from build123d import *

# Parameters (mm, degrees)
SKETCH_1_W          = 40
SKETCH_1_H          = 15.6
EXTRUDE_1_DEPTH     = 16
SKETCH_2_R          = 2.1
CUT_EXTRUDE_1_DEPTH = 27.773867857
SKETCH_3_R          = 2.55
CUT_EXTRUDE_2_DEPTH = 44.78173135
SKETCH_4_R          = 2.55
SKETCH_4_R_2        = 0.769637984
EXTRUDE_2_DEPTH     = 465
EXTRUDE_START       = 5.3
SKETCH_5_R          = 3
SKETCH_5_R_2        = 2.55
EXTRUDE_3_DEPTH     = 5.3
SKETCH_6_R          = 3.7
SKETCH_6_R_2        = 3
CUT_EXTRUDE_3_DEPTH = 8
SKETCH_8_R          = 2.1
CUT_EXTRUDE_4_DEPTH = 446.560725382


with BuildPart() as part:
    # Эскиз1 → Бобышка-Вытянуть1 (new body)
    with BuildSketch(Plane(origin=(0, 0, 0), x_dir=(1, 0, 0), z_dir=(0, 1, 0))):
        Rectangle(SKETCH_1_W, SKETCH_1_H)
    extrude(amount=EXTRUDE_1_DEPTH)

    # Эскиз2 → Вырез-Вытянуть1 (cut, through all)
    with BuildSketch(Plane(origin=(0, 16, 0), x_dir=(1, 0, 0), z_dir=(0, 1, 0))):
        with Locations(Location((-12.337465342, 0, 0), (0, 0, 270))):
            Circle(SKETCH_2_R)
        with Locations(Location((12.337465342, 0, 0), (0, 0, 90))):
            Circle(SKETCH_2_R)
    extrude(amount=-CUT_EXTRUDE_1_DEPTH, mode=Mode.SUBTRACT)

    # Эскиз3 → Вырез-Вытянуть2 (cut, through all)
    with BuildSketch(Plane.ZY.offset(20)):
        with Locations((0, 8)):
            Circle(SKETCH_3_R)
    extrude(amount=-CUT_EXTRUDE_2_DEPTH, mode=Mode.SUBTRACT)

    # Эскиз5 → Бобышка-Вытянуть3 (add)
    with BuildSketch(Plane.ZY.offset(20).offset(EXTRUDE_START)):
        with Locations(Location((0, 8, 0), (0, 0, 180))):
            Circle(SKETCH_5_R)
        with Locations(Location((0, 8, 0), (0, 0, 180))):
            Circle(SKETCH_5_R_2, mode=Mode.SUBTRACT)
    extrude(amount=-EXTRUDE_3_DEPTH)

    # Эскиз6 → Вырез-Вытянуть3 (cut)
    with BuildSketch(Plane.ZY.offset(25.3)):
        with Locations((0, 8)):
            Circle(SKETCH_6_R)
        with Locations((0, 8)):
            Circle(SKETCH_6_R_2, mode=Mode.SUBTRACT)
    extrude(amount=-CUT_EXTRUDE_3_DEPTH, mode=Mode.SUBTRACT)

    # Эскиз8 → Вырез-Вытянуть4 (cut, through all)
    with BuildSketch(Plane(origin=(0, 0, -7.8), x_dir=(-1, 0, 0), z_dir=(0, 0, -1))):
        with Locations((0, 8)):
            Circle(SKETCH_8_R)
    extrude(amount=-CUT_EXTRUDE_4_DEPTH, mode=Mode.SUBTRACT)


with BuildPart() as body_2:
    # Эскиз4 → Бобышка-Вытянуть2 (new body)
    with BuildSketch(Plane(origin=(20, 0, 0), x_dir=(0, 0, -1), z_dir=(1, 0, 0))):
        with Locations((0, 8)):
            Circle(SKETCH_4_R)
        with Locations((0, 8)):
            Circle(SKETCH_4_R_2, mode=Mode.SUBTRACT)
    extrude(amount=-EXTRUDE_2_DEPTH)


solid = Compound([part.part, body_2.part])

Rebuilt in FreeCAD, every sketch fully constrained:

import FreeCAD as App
import Part
import Sketcher
Q = App.Units.Quantity


def add_polygon(sketch, points):
    """Adds a closed chain of lines whose ends are joined by coincident constraints."""
    first, n = sketch.GeometryCount, len(points)
    for a, b in zip(points, points[1:] + points[:1]):
        sketch.addGeometry(Part.LineSegment(App.Vector(*a, 0), App.Vector(*b, 0)), False)
    for i in range(n):
        sketch.addConstraint(Sketcher.Constraint("Coincident", first + i, 2, first + (i + 1) % n, 1))

doc = App.newDocument("Part")
params = doc.addObject("Spreadsheet::Sheet", "Params")
for row, (alias, value) in enumerate([
    ("sketch1_width", "40 mm"),
    ("sketch1_height", "15.6 mm"),
    ("pad1_length", "16 mm"),
    ("sketch2_diameter", "4.2 mm"),
    ("sketch3_diameter", "5.1 mm"),
    ("sketch4_diameter", "6 mm"),
    ("sketch4_diameter2", "5.1 mm"),
    ("pad2_length", "5.3 mm"),
    ("sketch5_diameter", "6 mm"),
    ("sketch5_diameter2", "7.4 mm"),
    ("pocket3_length", "8 mm"),
    ("sketch6_diameter", "4.2 mm"),
    ("sketch7_diameter", "5.1 mm"),
    ("pad3_length", "465 mm"),
], start=1):
    params.set(f"A{row}", alias)
    params.set(f"B{row}", "=" + value)
    params.setAlias(f"B{row}", alias)

body = doc.addObject("PartDesign::Body", "Body")

# Sketch on XZ plane
sketch1 = body.newObject("Sketcher::SketchObject", "Sketch")
sketch1.AttachmentSupport = (doc.getObject("XZ_Plane"), [""])
sketch1.MapMode = "FlatFace"
add_polygon(sketch1, [(-20, -8), (-20, 8), (20, 8), (20, -8)])  # lines 0-3
sketch1.addConstraint([
    Sketcher.Constraint("Vertical", 0),
    Sketcher.Constraint("Horizontal", 1),
    Sketcher.Constraint("Vertical", 2),
    Sketcher.Constraint("Horizontal", 3),
    Sketcher.Constraint("Symmetric", 0, 2, 2, 2, -1, 1),
    Sketcher.Constraint("DistanceX", 1, 1, 1, 2, Q("40 mm")),
    Sketcher.Constraint("DistanceY", 0, 1, 0, 2, Q("15.6 mm")),
])
sketch1.setExpression("Constraints[9]", "Params.sketch1_width")
sketch1.setExpression("Constraints[10]", "Params.sketch1_height")
pad1 = body.newObject("PartDesign::Pad", "Pad")
pad1.Profile = sketch1
pad1.setExpression("Length", "Params.pad1_length")
pad1.Reversed = True

# Sketch on XZ plane
sketch2 = body.newObject("Sketcher::SketchObject", "Sketch001")
sketch2.AttachmentSupport = (doc.getObject("XZ_Plane"), [""])
sketch2.MapMode = "FlatFace"
sketch2.AttachmentOffset = App.Placement(App.Vector(0, 0, -16), App.Rotation())
sketch2.addGeometry([
    Part.Circle(App.Vector(-12.3, 0, 0), App.Vector(0, 0, 1), 2.1),
    Part.Circle(App.Vector(12.3, 0, 0), App.Vector(0, 0, 1), 2.1),
], False)
sketch2.addConstraint([
    Sketcher.Constraint("Equal", 0, 1),
    Sketcher.Constraint("Symmetric", 0, 3, 1, 3, -1, 1),
    Sketcher.Constraint("PointOnObject", 0, 3, -1),
    Sketcher.Constraint("Diameter", 0, Q("4.2 mm")),
    Sketcher.Constraint("DistanceX", 0, 3, 1, 3, Q("24.674931 mm")),
])
sketch2.setExpression("Constraints[3]", "Params.sketch2_diameter")
pocket1 = body.newObject("PartDesign::Pocket", "Pocket")
pocket1.Profile = sketch2
pocket1.Type = "ThroughAll"
pocket1.Reversed = True

# Sketch on YZ plane
sketch3 = body.newObject("Sketcher::SketchObject", "Sketch002")
sketch3.AttachmentSupport = (doc.getObject("YZ_Plane"), [""])
sketch3.MapMode = "FlatFace"
sketch3.AttachmentOffset = App.Placement(App.Vector(0, 0, -20), App.Rotation())
sketch3.addGeometry(Part.Circle(App.Vector(8, 0, 0), App.Vector(0, 0, 1), 2.5), False)
sketch3.addConstraint([
    Sketcher.Constraint("PointOnObject", 0, 3, -1),
    Sketcher.Constraint("Diameter", 0, Q("5.1 mm")),
    Sketcher.Constraint("DistanceX", -1, 1, 0, 3, Q("8 mm")),
])
sketch3.setExpression("Constraints[1]", "Params.sketch3_diameter")
pocket2 = body.newObject("PartDesign::Pocket", "Pocket001")
pocket2.Profile = sketch3
pocket2.Type = "ThroughAll"
pocket2.Reversed = True

# Sketch on YZ plane
sketch4 = body.newObject("Sketcher::SketchObject", "Sketch003")
sketch4.AttachmentSupport = (doc.getObject("YZ_Plane"), [""])
sketch4.MapMode = "FlatFace"
sketch4.AttachmentOffset = App.Placement(App.Vector(0, 0, -25.3), App.Rotation())
sketch4.addGeometry([
    Part.Circle(App.Vector(8, 0, 0), App.Vector(0, 0, 1), 3),
    Part.Circle(App.Vector(8, 0, 0), App.Vector(0, 0, 1), 2.5),
], False)
sketch4.addConstraint([
    Sketcher.Constraint("Coincident", 1, 3, 0, 3),
    Sketcher.Constraint("PointOnObject", 0, 3, -1),
    Sketcher.Constraint("Diameter", 0, Q("6 mm")),
    Sketcher.Constraint("Diameter", 1, Q("5.1 mm")),
    Sketcher.Constraint("DistanceX", -1, 1, 0, 3, Q("8 mm")),
])
sketch4.setExpression("Constraints[2]", "Params.sketch4_diameter")
sketch4.setExpression("Constraints[3]", "Params.sketch4_diameter2")
pad2 = body.newObject("PartDesign::Pad", "Pad001")
pad2.Profile = sketch4
pad2.setExpression("Length", "Params.pad2_length")

# Sketch on YZ plane
sketch5 = body.newObject("Sketcher::SketchObject", "Sketch004")
sketch5.AttachmentSupport = (doc.getObject("YZ_Plane"), [""])
sketch5.MapMode = "FlatFace"
sketch5.AttachmentOffset = App.Placement(App.Vector(0, 0, -25.3), App.Rotation())
sketch5.addGeometry([
    Part.Circle(App.Vector(8, 0, 0), App.Vector(0, 0, 1), 3.7),
    Part.Circle(App.Vector(8, 0, 0), App.Vector(0, 0, 1), 3),
], False)
sketch5.addConstraint([
    Sketcher.Constraint("Coincident", 1, 3, 0, 3),
    Sketcher.Constraint("PointOnObject", 0, 3, -1),
    Sketcher.Constraint("Diameter", 1, Q("6 mm")),
    Sketcher.Constraint("Diameter", 0, Q("7.4 mm")),
    Sketcher.Constraint("DistanceX", -1, 1, 0, 3, Q("8 mm")),
])
sketch5.setExpression("Constraints[2]", "Params.sketch5_diameter")
sketch5.setExpression("Constraints[3]", "Params.sketch5_diameter2")
pocket3 = body.newObject("PartDesign::Pocket", "Pocket002")
pocket3.Profile = sketch5
pocket3.setExpression("Length", "Params.pocket3_length")
pocket3.Reversed = True

# Sketch on XY plane
sketch6 = body.newObject("Sketcher::SketchObject", "Sketch005")
sketch6.AttachmentSupport = (doc.getObject("XY_Plane"), [""])
sketch6.MapMode = "FlatFace"
sketch6.AttachmentOffset = App.Placement(App.Vector(0, 0, -7.8), App.Rotation())
sketch6.addGeometry(Part.Circle(App.Vector(0, 8, 0), App.Vector(0, 0, 1), 2.1), False)
sketch6.addConstraint([
    Sketcher.Constraint("PointOnObject", 0, 3, -2),
    Sketcher.Constraint("Diameter", 0, Q("4.2 mm")),
    Sketcher.Constraint("DistanceY", -1, 1, 0, 3, Q("8 mm")),
])
sketch6.setExpression("Constraints[1]", "Params.sketch6_diameter")
pocket4 = body.newObject("PartDesign::Pocket", "Pocket003")
pocket4.Profile = sketch6
pocket4.Type = "ThroughAll"
pocket4.Reversed = True
body2 = doc.addObject("PartDesign::Body", "Body001")

# Sketch on YZ plane
sketch7 = body2.newObject("Sketcher::SketchObject", "Sketch006")
sketch7.AttachmentSupport = (doc.getObject("YZ_Plane001"), [""])
sketch7.MapMode = "FlatFace"
sketch7.AttachmentOffset = App.Placement(App.Vector(0, 0, 20), App.Rotation())
sketch7.addGeometry([
    Part.Circle(App.Vector(8, 0, 0), App.Vector(0, 0, 1), 2.5),
    Part.Circle(App.Vector(8, 0, 0), App.Vector(0, 0, 1), 0.8),
], False)
sketch7.addConstraint([
    Sketcher.Constraint("Coincident", 1, 3, 0, 3),
    Sketcher.Constraint("PointOnObject", 0, 3, -1),
    Sketcher.Constraint("Diameter", 0, Q("5.1 mm")),
    Sketcher.Constraint("DistanceX", -1, 1, 0, 3, Q("8 mm")),
    Sketcher.Constraint("Diameter", 1, Q("1.539276 mm")),
])
sketch7.setExpression("Constraints[2]", "Params.sketch7_diameter")
pad3 = body2.newObject("PartDesign::Pad", "Pad002")
pad3.Profile = sketch7
pad3.setExpression("Length", "Params.pad3_length")
pad3.Reversed = True

doc.recompute()
